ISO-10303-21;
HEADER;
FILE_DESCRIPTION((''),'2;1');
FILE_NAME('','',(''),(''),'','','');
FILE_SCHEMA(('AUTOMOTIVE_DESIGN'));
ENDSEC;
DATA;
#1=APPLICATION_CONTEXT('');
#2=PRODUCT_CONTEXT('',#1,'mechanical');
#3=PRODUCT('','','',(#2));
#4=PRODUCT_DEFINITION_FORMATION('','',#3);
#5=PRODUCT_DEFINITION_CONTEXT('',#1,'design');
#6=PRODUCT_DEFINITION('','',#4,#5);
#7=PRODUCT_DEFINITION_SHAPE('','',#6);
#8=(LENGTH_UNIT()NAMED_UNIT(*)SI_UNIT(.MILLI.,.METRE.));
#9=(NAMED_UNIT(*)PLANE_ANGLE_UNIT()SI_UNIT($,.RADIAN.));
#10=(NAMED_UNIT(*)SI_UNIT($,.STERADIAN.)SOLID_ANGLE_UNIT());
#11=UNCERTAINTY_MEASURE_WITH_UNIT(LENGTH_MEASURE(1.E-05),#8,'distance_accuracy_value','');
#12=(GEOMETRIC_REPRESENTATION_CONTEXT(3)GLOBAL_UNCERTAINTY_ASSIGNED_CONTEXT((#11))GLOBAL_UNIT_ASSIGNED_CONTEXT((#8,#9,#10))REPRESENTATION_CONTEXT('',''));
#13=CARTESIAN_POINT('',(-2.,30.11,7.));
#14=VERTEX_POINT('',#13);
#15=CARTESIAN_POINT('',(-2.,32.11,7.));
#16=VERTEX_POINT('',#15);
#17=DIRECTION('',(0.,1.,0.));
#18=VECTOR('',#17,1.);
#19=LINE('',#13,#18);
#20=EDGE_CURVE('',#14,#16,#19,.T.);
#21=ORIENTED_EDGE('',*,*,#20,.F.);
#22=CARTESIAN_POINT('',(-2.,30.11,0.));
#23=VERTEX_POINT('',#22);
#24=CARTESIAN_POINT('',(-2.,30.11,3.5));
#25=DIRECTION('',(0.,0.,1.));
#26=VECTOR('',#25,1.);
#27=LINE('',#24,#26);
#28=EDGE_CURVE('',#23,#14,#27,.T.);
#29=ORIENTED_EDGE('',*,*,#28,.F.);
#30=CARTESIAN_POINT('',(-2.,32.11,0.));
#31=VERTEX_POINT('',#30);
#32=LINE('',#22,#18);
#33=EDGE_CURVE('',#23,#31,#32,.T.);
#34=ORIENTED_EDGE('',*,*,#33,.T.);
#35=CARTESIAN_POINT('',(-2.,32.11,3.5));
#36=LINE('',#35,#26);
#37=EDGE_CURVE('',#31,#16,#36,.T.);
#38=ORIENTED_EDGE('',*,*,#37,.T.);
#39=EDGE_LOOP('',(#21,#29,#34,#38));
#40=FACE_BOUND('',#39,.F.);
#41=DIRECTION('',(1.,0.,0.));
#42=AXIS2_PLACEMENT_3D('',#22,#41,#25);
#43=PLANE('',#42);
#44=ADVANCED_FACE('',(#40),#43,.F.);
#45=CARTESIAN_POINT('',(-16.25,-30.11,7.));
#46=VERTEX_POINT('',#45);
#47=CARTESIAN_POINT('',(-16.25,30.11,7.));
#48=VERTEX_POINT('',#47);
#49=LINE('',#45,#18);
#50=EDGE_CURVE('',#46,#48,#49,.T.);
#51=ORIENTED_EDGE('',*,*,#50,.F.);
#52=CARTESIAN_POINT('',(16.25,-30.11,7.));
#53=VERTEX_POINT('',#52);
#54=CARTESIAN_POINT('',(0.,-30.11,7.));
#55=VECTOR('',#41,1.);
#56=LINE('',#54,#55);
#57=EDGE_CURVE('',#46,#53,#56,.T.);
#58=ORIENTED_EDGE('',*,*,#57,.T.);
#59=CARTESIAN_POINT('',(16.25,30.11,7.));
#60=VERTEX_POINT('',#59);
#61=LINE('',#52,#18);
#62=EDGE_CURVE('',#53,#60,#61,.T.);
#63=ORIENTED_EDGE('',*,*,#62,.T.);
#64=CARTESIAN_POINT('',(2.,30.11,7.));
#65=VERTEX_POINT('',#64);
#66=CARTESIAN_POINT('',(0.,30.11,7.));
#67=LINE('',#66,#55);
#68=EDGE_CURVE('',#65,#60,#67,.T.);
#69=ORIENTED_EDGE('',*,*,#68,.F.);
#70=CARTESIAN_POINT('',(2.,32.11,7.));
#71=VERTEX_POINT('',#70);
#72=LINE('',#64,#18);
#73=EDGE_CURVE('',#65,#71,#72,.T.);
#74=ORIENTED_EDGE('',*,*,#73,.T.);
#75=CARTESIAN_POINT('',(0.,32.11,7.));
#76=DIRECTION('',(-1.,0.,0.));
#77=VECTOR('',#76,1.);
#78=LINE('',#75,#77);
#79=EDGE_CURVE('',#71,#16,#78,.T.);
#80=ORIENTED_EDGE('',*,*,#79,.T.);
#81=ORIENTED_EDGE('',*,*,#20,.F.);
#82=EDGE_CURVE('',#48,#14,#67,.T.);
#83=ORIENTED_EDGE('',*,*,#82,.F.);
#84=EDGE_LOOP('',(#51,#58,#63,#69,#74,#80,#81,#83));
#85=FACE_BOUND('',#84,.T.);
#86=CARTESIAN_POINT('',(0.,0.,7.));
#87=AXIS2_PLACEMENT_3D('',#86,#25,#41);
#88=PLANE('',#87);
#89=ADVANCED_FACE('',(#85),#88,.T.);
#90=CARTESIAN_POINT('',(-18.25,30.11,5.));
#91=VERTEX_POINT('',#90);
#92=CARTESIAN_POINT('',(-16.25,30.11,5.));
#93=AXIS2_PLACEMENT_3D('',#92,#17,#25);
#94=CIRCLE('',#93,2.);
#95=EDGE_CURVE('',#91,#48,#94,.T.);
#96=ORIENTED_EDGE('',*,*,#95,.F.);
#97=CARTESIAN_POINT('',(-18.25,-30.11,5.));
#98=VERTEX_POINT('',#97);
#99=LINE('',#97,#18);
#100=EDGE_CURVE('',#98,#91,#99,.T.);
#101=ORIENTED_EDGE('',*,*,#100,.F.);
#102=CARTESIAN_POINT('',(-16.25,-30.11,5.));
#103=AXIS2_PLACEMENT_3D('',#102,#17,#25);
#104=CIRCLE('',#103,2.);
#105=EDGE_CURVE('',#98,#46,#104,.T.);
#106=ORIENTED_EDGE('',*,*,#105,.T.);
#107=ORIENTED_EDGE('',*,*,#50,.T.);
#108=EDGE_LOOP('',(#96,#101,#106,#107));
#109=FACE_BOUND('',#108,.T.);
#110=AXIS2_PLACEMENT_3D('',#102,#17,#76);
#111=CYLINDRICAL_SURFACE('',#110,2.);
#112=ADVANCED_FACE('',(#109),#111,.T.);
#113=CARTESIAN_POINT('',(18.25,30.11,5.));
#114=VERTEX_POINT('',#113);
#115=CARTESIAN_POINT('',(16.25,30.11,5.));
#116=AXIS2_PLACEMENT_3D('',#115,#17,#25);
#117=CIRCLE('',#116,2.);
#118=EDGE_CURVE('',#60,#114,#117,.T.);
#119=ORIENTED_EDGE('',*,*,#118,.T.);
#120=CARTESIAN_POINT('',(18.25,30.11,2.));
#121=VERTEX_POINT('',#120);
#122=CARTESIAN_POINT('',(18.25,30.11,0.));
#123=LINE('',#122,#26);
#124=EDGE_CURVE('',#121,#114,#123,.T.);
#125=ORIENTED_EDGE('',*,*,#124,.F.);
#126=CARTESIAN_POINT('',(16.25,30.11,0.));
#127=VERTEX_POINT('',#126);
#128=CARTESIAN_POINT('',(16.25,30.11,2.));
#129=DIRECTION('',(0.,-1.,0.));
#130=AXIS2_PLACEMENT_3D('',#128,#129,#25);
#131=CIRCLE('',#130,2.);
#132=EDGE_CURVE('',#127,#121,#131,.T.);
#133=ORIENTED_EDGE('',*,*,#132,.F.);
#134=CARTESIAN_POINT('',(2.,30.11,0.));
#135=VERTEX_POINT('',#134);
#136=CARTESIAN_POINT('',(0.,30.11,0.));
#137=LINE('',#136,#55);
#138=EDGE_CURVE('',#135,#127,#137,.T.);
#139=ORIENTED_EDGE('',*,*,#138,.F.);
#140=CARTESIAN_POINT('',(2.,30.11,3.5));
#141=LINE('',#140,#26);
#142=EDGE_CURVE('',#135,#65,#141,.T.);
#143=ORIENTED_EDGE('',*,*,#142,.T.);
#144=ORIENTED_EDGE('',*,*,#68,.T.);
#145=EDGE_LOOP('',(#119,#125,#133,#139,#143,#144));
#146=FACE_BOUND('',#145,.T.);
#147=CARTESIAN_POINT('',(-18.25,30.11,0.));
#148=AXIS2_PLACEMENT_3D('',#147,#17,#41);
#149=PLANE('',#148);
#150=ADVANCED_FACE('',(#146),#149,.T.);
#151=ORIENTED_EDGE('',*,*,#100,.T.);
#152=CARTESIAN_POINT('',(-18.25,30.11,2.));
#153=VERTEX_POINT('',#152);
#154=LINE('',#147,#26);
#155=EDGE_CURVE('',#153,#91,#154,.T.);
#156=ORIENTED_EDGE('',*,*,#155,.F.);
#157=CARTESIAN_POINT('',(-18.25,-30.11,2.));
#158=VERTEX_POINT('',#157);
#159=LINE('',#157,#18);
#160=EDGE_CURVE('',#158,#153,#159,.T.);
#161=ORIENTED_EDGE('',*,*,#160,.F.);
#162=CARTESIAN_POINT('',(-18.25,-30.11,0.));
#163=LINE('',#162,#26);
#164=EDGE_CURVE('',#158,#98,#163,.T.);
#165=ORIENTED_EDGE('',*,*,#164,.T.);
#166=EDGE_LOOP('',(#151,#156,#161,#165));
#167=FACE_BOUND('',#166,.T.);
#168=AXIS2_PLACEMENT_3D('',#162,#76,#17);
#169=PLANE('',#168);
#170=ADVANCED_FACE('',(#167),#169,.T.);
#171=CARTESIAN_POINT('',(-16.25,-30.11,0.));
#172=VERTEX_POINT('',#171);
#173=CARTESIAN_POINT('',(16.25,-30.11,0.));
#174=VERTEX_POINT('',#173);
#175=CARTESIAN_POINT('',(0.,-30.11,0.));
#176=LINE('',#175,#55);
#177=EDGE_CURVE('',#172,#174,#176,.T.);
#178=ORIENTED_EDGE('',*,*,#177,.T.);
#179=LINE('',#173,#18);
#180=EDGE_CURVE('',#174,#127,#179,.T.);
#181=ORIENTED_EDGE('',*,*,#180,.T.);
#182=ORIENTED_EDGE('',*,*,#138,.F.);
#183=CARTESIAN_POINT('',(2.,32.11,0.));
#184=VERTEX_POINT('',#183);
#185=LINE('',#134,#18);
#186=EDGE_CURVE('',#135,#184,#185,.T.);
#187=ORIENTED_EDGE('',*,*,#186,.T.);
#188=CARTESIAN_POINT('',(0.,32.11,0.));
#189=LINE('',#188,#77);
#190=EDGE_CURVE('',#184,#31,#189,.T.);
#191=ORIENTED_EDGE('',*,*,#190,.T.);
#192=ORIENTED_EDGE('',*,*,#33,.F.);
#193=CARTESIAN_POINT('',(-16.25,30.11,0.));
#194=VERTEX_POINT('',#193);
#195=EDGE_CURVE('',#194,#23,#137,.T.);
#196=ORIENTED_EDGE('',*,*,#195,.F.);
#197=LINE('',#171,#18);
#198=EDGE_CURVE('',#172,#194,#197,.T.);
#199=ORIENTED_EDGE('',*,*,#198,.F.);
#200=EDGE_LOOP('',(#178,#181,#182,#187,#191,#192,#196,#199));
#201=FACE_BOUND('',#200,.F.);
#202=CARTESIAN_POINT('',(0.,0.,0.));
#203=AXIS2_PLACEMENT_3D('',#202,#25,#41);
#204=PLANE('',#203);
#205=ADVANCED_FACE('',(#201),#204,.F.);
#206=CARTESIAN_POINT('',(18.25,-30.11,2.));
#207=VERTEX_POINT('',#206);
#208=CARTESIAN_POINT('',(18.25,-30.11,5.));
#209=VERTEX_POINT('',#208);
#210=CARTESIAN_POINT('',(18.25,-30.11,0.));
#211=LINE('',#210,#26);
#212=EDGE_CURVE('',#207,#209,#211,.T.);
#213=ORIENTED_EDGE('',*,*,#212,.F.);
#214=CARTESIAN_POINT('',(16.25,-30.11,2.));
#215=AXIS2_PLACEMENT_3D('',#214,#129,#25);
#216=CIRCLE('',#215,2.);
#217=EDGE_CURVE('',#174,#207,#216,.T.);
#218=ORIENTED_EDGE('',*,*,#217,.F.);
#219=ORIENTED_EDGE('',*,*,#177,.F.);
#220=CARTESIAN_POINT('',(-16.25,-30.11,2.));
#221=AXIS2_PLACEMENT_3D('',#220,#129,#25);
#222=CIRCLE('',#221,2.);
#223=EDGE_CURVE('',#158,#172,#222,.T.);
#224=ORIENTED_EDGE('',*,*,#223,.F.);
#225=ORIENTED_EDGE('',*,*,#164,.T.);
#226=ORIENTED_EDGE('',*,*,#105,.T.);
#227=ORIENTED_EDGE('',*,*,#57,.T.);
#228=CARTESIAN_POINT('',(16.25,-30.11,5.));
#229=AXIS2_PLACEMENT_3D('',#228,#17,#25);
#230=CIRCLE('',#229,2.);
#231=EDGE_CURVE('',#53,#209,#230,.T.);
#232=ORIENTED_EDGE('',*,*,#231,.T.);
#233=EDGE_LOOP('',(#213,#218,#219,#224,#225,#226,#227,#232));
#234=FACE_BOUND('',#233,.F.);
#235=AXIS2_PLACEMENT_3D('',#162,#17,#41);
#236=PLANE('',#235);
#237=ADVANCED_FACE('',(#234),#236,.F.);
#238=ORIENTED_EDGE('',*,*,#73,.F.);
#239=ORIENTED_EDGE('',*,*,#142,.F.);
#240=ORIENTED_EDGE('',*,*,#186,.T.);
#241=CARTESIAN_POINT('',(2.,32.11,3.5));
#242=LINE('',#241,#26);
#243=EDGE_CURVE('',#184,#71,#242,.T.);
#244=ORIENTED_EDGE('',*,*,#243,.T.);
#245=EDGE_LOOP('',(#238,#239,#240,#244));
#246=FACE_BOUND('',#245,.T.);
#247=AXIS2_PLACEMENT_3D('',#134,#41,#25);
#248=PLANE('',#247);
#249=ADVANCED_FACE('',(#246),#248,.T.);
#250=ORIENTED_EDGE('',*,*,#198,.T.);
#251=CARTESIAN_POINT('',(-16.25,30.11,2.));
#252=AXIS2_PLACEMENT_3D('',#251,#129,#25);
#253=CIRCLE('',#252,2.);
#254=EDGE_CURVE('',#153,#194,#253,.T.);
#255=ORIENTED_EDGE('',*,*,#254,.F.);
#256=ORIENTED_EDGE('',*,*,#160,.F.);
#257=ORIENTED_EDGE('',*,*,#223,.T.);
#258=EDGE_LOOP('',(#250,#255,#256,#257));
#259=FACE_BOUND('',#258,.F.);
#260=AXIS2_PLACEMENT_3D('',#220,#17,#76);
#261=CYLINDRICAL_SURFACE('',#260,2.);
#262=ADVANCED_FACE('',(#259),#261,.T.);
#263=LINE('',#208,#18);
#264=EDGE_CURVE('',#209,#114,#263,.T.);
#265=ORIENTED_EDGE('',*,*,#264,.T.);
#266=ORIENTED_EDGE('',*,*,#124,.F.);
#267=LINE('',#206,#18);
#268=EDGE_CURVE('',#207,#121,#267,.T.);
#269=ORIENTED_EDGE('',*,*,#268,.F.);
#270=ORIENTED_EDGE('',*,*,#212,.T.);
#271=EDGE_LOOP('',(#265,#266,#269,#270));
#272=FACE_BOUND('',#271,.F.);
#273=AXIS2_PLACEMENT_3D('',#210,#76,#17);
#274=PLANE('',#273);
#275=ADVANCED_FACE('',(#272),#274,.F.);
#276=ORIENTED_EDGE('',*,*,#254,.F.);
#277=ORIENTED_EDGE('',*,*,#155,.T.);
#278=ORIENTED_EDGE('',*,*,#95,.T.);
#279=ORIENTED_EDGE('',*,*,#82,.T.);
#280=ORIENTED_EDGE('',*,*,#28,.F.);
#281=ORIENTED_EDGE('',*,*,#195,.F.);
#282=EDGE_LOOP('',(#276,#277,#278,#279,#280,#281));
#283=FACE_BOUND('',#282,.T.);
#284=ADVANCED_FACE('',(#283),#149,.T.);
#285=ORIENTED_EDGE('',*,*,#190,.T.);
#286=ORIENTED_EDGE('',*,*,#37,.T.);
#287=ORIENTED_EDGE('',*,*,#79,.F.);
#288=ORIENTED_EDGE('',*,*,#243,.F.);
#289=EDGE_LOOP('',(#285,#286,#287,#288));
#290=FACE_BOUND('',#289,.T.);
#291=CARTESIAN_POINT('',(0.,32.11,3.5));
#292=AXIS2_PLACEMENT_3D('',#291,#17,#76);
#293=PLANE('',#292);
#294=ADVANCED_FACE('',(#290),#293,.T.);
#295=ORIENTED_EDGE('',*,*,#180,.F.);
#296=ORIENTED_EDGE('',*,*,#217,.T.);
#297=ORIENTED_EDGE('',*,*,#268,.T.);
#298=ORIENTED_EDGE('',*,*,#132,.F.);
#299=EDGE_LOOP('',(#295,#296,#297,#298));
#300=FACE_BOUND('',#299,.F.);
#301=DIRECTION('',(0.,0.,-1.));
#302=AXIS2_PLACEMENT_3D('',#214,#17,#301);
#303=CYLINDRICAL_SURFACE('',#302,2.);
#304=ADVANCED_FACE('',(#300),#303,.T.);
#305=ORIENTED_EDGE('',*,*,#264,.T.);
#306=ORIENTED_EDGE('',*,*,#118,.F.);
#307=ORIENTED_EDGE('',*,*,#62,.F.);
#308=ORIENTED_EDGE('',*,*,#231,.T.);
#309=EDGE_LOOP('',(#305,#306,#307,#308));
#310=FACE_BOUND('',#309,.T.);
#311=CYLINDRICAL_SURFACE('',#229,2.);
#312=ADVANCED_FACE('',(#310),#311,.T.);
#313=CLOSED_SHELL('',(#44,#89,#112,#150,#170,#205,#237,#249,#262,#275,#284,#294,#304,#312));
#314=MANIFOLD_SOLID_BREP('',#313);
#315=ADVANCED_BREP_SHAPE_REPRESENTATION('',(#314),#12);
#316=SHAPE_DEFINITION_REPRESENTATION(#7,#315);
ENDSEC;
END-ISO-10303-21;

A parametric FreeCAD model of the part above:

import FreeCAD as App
import Part
import Sketcher

V = App.Vector
Q = App.Units.Quantity


def edges_at(feature, points):
    """Names of the edges that pass closest to the given points."""
    edges = feature.Shape.Edges
    near = lambda p: min(range(len(edges)), key=lambda i: edges[i].distToShape(Part.Vertex(*p))[0])
    return sorted({f"Edge{near(p) + 1}" for p in points})

doc = App.newDocument("Part")
body = doc.addObject("PartDesign::Body", "Body")

sketch1 = doc.addObject("Sketcher::SketchObject", "Sketch")
body.addObject(sketch1)
sketch1.AttachmentSupport = (doc.XY_Plane, [""])
sketch1.MapMode = "FlatFace"
sketch1.addGeometry([
    Part.LineSegment(V(-18, 30, 0), V(-18, -30, 0)),
    Part.LineSegment(V(-18, -30, 0), V(18, -30, 0)),
    Part.LineSegment(V(18, -30, 0), V(18, 30, 0)),
    Part.LineSegment(V(18, 30, 0), V(-18, 30, 0)),
], False)
sketch1.addConstraint([
    Sketcher.Constraint("Coincident", 0, 2, 1, 1),
    Sketcher.Constraint("Coincident", 1, 2, 2, 1),
    Sketcher.Constraint("Coincident", 2, 2, 3, 1),
    Sketcher.Constraint("Coincident", 3, 2, 0, 1),
    Sketcher.Constraint("Vertical", 0),
    Sketcher.Constraint("Horizontal", 1),
    Sketcher.Constraint("Vertical", 2),
    Sketcher.Constraint("Horizontal", 3),
    Sketcher.Constraint("Symmetric", 0, 2, 2, 2, -1, 1),
    Sketcher.Constraint("DistanceX", 1, 1, 1, 2, Q("36.5 mm")),
    Sketcher.Constraint("DistanceY", 0, 2, 0, 1, Q("60.22 mm")),
])
pad1 = doc.addObject("PartDesign::Pad", "Pad")
body.addObject(pad1)
pad1.Profile = sketch1
pad1.Length = 7

sketch2 = doc.addObject("Sketcher::SketchObject", "Sketch001")
body.addObject(sketch2)
sketch2.AttachmentSupport = (doc.XZ_Plane, [""])
sketch2.MapMode = "FlatFace"
sketch2.AttachmentOffset = App.Placement(V(0, 0, -30.11), App.Rotation())
sketch2.addGeometry([
    Part.LineSegment(V(2, 7, 0), V(2, 0, 0)),
    Part.LineSegment(V(2, 0, 0), V(-2, 0, 0)),
    Part.LineSegment(V(-2, 0, 0), V(-2, 7, 0)),
    Part.LineSegment(V(-2, 7, 0), V(2, 7, 0)),
], False)
sketch2.addConstraint([
    Sketcher.Constraint("Coincident", 0, 2, 1, 1),
    Sketcher.Constraint("Coincident", 1, 2, 2, 1),
    Sketcher.Constraint("Coincident", 2, 2, 3, 1),
    Sketcher.Constraint("Coincident", 3, 2, 0, 1),
    Sketcher.Constraint("Vertical", 0),
    Sketcher.Constraint("Horizontal", 1),
    Sketcher.Constraint("Vertical", 2),
    Sketcher.Constraint("Horizontal", 3),
    Sketcher.Constraint("Symmetric", 0, 2, 1, 2, -1, 1),
    Sketcher.Constraint("DistanceX", 1, 2, 1, 1, Q("4 mm")),
    Sketcher.Constraint("DistanceY", 0, 2, 0, 1, Q("7 mm")),
])
pad2 = doc.addObject("PartDesign::Pad", "Pad001")
body.addObject(pad2)
pad2.Profile = sketch2
pad2.Length = 2
pad2.Reversed = True
doc.recompute()

fillet = doc.addObject("PartDesign::Fillet", "Fillet")
body.addObject(fillet)
fillet.Base = (pad2, edges_at(pad2, [
    (18.25, 0, 7),
    (18.25, 0, 0),
    (-18.25, 0, 7),
    (-18.25, 0, 0),
]))
fillet.Radius = 2

doc.recompute()
